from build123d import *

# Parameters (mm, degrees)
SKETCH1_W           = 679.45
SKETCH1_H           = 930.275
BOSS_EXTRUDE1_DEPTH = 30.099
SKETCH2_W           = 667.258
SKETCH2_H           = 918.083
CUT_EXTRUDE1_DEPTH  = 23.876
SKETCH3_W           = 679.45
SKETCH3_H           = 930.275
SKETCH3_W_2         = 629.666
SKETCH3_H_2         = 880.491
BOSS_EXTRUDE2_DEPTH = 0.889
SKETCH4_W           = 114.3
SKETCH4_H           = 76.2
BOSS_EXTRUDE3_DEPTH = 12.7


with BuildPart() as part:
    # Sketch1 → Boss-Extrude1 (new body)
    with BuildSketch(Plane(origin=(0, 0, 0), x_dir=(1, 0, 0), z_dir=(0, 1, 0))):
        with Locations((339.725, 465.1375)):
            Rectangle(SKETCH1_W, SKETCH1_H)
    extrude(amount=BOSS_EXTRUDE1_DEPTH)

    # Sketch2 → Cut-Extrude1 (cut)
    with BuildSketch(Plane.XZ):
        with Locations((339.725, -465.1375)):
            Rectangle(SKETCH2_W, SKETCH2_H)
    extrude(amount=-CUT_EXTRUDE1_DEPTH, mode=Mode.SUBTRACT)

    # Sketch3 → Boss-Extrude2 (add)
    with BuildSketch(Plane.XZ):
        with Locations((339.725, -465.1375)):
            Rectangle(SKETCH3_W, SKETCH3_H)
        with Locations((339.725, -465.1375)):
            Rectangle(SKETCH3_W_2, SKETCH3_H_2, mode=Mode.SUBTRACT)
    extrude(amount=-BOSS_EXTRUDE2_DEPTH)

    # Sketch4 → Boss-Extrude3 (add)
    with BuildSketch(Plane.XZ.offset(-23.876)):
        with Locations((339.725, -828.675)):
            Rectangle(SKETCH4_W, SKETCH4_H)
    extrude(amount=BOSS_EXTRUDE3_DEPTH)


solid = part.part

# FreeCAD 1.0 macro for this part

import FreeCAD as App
import Part
import Sketcher
from FreeCAD import Vector
Q = App.Units.Quantity

doc = App.newDocument("Part")
body = doc.addObject("PartDesign::Body", "Body")

sketch1 = body.newObject("Sketcher::SketchObject", "Sketch")
sketch1.AttachmentSupport = (doc.getObject("XZ_Plane"), [""])
sketch1.MapMode = "FlatFace"
sketch1.addGeometry([
    Part.LineSegment(Vector(0, -930.275, 0), Vector(0, 0, 0)),
    Part.LineSegment(Vector(0, 0, 0), Vector(679.45, 0, 0)),
    Part.LineSegment(Vector(679.45, 0, 0), Vector(679.45, -930.275, 0)),
    Part.LineSegment(Vector(679.45, -930.275, 0), Vector(0, -930.275, 0)),
], False)
sketch1.addConstraint([
    Sketcher.Constraint("Coincident", 0, 2, 1, 1),
    Sketcher.Constraint("Coincident", 1, 2, 2, 1),
    Sketcher.Constraint("Coincident", 2, 2, 3, 1),
    Sketcher.Constraint("Coincident", 3, 2, 0, 1),
    Sketcher.Constraint("Vertical", 0),
    Sketcher.Constraint("Horizontal", 1),
    Sketcher.Constraint("Vertical", 2),
    Sketcher.Constraint("Horizontal", 3),
    Sketcher.Constraint("Coincident", 0, 2, -1, 1),
    Sketcher.Constraint("DistanceX", 1, 1, 1, 2, Q("26.75 in")),
    Sketcher.Constraint("DistanceY", 0, 1, 0, 2, Q("36.625 in")),
])
pad1 = body.newObject("PartDesign::Pad", "Pad")
pad1.Profile = sketch1
pad1.Length = Q("1.185 in")
pad1.Reversed = True

sketch2 = body.newObject("Sketcher::SketchObject", "Sketch001")
sketch2.AttachmentSupport = (doc.getObject("XZ_Plane"), [""])
sketch2.MapMode = "FlatFace"
sketch2.addGeometry([
    Part.LineSegment(Vector(6.096, -6.096, 0), Vector(6.096, -924.179, 0)),
    Part.LineSegment(Vector(6.096, -924.179, 0), Vector(673.354, -924.179, 0)),
    Part.LineSegment(Vector(673.354, -924.179, 0), Vector(673.354, -6.096, 0)),
    Part.LineSegment(Vector(673.354, -6.096, 0), Vector(6.096, -6.096, 0)),
], False)
sketch2.addConstraint([
    Sketcher.Constraint("Coincident", 0, 2, 1, 1),
    Sketcher.Constraint("Coincident", 1, 2, 2, 1),
    Sketcher.Constraint("Coincident", 2, 2, 3, 1),
    Sketcher.Constraint("Coincident", 3, 2, 0, 1),
    Sketcher.Constraint("Vertical", 0),
    Sketcher.Constraint("Horizontal", 1),
    Sketcher.Constraint("Vertical", 2),
    Sketcher.Constraint("Horizontal", 3),
    Sketcher.Constraint("DistanceX", 1, 1, 1, 2, Q("26.27 in")),
    Sketcher.Constraint("DistanceY", 0, 2, 0, 1, Q("36.145 in")),
    Sketcher.Constraint("DistanceX", -1, 1, 0, 2, Q("0.24 in")),
    Sketcher.Constraint("DistanceY", 2, 2, -1, 1, Q("0.24 in")),
])
pocket1 = body.newObject("PartDesign::Pocket", "Pocket")
pocket1.Profile = sketch2
pocket1.Length = Q("0.94 in")

sketch3 = body.newObject("Sketcher::SketchObject", "Sketch002")
sketch3.AttachmentSupport = (doc.getObject("XZ_Plane"), [""])
sketch3.MapMode = "FlatFace"
sketch3.addGeometry([
    Part.LineSegment(Vector(0, 0, 0), Vector(0, -930.275, 0)),
    Part.LineSegment(Vector(0, -930.275, 0), Vector(679.45, -930.275, 0)),
    Part.LineSegment(Vector(679.45, -930.275, 0), Vector(679.45, 0, 0)),
    Part.LineSegment(Vector(679.45, 0, 0), Vector(0, 0, 0)),
    Part.LineSegment(Vector(654.558, -905.383, 0), Vector(24.892, -905.383, 0)),
    Part.LineSegment(Vector(24.892, -905.383, 0), Vector(24.892, -24.892, 0)),
    Part.LineSegment(Vector(24.892, -24.892, 0), Vector(654.558, -24.892, 0)),
    Part.LineSegment(Vector(654.558, -24.892, 0), Vector(654.558, -905.383, 0)),
], False)
sketch3.addConstraint([
    Sketcher.Constraint("Coincident", 0, 2, 1, 1),
    Sketcher.Constraint("Coincident", 1, 2, 2, 1),
    Sketcher.Constraint("Coincident", 2, 2, 3, 1),
    Sketcher.Constraint("Coincident", 3, 2, 0, 1),
    Sketcher.Constraint("Coincident", 4, 2, 5, 1),
    Sketcher.Constraint("Coincident", 5, 2, 6, 1),
    Sketcher.Constraint("Coincident", 6, 2, 7, 1),
    Sketcher.Constraint("Coincident", 7, 2, 4, 1),
    Sketcher.Constraint("Vertical", 0),
    Sketcher.Constraint("Horizontal", 1),
    Sketcher.Constraint("Vertical", 2),
    Sketcher.Constraint("Horizontal", 3),
    Sketcher.Constraint("Horizontal", 4),
    Sketcher.Constraint("Vertical", 5),
    Sketcher.Constraint("Horizontal", 6),
    Sketcher.Constraint("Vertical", 7),
    Sketcher.Constraint("Coincident", 3, 2, -1, 1),
    Sketcher.Constraint("DistanceX", 1, 1, 1, 2, Q("26.75 in")),
    Sketcher.Constraint("DistanceX", 4, 2, 4, 1, Q("24.79 in")),
    Sketcher.Constraint("DistanceY", 0, 2, 0, 1, Q("36.625 in")),
    Sketcher.Constraint("DistanceY", 5, 1, 5, 2, Q("34.665 in")),
    Sketcher.Constraint("DistanceX", -1, 1, 4, 2, Q("0.98 in")),
    Sketcher.Constraint("DistanceY", 5, 2, -1, 1, Q("0.98 in")),
])
pad2 = body.newObject("PartDesign::Pad", "Pad001")
pad2.Profile = sketch3
pad2.Length = Q("0.035 in")
pad2.Reversed = True

sketch4 = body.newObject("Sketcher::SketchObject", "Sketch003")
sketch4.AttachmentSupport = (doc.getObject("XZ_Plane"), [""])
sketch4.MapMode = "FlatFace"
sketch4.AttachmentOffset = App.Placement(Vector(0, 0, -0.94 * 25.4), App.Rotation())
sketch4.addGeometry([
    Part.LineSegment(Vector(282.575, -790.575, 0), Vector(282.575, -866.775, 0)),
    Part.LineSegment(Vector(282.575, -866.775, 0), Vector(396.875, -866.775, 0)),
    Part.LineSegment(Vector(396.875, -866.775, 0), Vector(396.875, -790.575, 0)),
    Part.LineSegment(Vector(396.875, -790.575, 0), Vector(282.575, -790.575, 0)),
], False)
sketch4.addConstraint([
    Sketcher.Constraint("Coincident", 0, 2, 1, 1),
    Sketcher.Constraint("Coincident", 1, 2, 2, 1),
    Sketcher.Constraint("Coincident", 2, 2, 3, 1),
    Sketcher.Constraint("Coincident", 3, 2, 0, 1),
    Sketcher.Constraint("Vertical", 0),
    Sketcher.Constraint("Horizontal", 1),
    Sketcher.Constraint("Vertical", 2),
    Sketcher.Constraint("Horizontal", 3),
    Sketcher.Constraint("DistanceY", 0, 2, 0, 1, Q("3 in")),
    Sketcher.Constraint("DistanceX", 1, 1, 1, 2, Q("4.5 in")),
    Sketcher.Constraint("DistanceX", -1, 1, 0, 2, Q("11.125 in")),
    Sketcher.Constraint("DistanceY", 0, 2, -1, 1, Q("34.125 in")),
])
pad3 = body.newObject("PartDesign::Pad", "Pad002")
pad3.Profile = sketch4
pad3.Length = Q("0.5 in")

doc.recompute()
